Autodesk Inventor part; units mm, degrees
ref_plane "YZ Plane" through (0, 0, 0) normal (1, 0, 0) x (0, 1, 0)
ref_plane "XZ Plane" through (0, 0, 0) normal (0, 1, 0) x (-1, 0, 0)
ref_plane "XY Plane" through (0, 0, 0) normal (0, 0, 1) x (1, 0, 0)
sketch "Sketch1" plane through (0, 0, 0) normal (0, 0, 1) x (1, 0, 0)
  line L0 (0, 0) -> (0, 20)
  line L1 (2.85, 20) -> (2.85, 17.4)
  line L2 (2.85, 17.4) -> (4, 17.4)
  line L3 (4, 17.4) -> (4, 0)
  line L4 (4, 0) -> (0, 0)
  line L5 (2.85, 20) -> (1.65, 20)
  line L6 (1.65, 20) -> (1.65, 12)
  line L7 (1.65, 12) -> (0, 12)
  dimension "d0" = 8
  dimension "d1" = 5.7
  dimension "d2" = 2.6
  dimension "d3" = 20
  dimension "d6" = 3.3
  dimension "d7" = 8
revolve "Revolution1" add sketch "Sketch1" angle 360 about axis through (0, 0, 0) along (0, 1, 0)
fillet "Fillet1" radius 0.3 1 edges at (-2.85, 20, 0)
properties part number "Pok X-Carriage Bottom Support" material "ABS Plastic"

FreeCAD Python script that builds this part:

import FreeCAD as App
import Part
import Sketcher

V = App.Vector
Q = App.Units.Quantity


def edges_at(feature, points):
    """Names of the edges that pass closest to the given points."""
    edges = feature.Shape.Edges
    near = lambda p: min(range(len(edges)), key=lambda i: edges[i].distToShape(Part.Vertex(*p))[0])
    return sorted({f"Edge{near(p) + 1}" for p in points})

doc = App.newDocument("Part")
body = doc.addObject("PartDesign::Body", "Body")

sketch1 = doc.addObject("Sketcher::SketchObject", "Sketch")
body.addObject(sketch1)
sketch1.AttachmentSupport = (doc.XY_Plane, [""])
sketch1.MapMode = "FlatFace"
sketch1.addGeometry([
    Part.LineSegment(V(0, 12, 0), V(0, 0, 0)),
    Part.LineSegment(V(0, 0, 0), V(4, 0, 0)),
    Part.LineSegment(V(4, 0, 0), V(4, 17.4, 0)),
    Part.LineSegment(V(4, 17.4, 0), V(2.9, 17.4, 0)),
    Part.LineSegment(V(2.9, 17.4, 0), V(2.9, 20, 0)),
    Part.LineSegment(V(2.9, 20, 0), V(1.6, 20, 0)),
    Part.LineSegment(V(1.6, 20, 0), V(1.6, 12, 0)),
    Part.LineSegment(V(1.6, 12, 0), V(0, 12, 0)),
], False)
sketch1.addConstraint([
    Sketcher.Constraint("Coincident", 0, 2, 1, 1),
    Sketcher.Constraint("Coincident", 1, 2, 2, 1),
    Sketcher.Constraint("Coincident", 2, 2, 3, 1),
    Sketcher.Constraint("Coincident", 3, 2, 4, 1),
    Sketcher.Constraint("Coincident", 4, 2, 5, 1),
    Sketcher.Constraint("Coincident", 5, 2, 6, 1),
    Sketcher.Constraint("Coincident", 6, 2, 7, 1),
    Sketcher.Constraint("Coincident", 7, 2, 0, 1),
    Sketcher.Constraint("Vertical", 0),
    Sketcher.Constraint("Horizontal", 1),
    Sketcher.Constraint("Vertical", 2),
    Sketcher.Constraint("Horizontal", 3),
    Sketcher.Constraint("Vertical", 4),
    Sketcher.Constraint("Horizontal", 5),
    Sketcher.Constraint("Vertical", 6),
    Sketcher.Constraint("Horizontal", 7),
    Sketcher.Constraint("Coincident", 0, 2, -1, 1),
    Sketcher.Constraint("DistanceY", 6, 2, 6, 1, Q("8 mm")),
    Sketcher.Constraint("DistanceY", 4, 1, 4, 2, Q("2.6 mm")),
    Sketcher.Constraint("DistanceY", -1, 1, 4, 2, Q("20 mm")),
    Sketcher.Constraint("DistanceX", 1, 1, 1, 2, Q("4 mm")),
    Sketcher.Constraint("DistanceX", 5, 2, 5, 1, Q("1.2 mm")),
    Sketcher.Constraint("DistanceX", 3, 2, 3, 1, Q("1.15 mm")),
])
revolution = doc.addObject("PartDesign::Revolution", "Revolution")
body.addObject(revolution)
revolution.Profile = sketch1
revolution.ReferenceAxis = (sketch1, ["V_Axis"])
revolution.Angle = 360
doc.recompute()

fillet = doc.addObject("PartDesign::Fillet", "Fillet")
body.addObject(fillet)
fillet.Base = (revolution, edges_at(revolution, [(-2.85, 20, 0)]))
fillet.Radius = 0.3

doc.recompute()
